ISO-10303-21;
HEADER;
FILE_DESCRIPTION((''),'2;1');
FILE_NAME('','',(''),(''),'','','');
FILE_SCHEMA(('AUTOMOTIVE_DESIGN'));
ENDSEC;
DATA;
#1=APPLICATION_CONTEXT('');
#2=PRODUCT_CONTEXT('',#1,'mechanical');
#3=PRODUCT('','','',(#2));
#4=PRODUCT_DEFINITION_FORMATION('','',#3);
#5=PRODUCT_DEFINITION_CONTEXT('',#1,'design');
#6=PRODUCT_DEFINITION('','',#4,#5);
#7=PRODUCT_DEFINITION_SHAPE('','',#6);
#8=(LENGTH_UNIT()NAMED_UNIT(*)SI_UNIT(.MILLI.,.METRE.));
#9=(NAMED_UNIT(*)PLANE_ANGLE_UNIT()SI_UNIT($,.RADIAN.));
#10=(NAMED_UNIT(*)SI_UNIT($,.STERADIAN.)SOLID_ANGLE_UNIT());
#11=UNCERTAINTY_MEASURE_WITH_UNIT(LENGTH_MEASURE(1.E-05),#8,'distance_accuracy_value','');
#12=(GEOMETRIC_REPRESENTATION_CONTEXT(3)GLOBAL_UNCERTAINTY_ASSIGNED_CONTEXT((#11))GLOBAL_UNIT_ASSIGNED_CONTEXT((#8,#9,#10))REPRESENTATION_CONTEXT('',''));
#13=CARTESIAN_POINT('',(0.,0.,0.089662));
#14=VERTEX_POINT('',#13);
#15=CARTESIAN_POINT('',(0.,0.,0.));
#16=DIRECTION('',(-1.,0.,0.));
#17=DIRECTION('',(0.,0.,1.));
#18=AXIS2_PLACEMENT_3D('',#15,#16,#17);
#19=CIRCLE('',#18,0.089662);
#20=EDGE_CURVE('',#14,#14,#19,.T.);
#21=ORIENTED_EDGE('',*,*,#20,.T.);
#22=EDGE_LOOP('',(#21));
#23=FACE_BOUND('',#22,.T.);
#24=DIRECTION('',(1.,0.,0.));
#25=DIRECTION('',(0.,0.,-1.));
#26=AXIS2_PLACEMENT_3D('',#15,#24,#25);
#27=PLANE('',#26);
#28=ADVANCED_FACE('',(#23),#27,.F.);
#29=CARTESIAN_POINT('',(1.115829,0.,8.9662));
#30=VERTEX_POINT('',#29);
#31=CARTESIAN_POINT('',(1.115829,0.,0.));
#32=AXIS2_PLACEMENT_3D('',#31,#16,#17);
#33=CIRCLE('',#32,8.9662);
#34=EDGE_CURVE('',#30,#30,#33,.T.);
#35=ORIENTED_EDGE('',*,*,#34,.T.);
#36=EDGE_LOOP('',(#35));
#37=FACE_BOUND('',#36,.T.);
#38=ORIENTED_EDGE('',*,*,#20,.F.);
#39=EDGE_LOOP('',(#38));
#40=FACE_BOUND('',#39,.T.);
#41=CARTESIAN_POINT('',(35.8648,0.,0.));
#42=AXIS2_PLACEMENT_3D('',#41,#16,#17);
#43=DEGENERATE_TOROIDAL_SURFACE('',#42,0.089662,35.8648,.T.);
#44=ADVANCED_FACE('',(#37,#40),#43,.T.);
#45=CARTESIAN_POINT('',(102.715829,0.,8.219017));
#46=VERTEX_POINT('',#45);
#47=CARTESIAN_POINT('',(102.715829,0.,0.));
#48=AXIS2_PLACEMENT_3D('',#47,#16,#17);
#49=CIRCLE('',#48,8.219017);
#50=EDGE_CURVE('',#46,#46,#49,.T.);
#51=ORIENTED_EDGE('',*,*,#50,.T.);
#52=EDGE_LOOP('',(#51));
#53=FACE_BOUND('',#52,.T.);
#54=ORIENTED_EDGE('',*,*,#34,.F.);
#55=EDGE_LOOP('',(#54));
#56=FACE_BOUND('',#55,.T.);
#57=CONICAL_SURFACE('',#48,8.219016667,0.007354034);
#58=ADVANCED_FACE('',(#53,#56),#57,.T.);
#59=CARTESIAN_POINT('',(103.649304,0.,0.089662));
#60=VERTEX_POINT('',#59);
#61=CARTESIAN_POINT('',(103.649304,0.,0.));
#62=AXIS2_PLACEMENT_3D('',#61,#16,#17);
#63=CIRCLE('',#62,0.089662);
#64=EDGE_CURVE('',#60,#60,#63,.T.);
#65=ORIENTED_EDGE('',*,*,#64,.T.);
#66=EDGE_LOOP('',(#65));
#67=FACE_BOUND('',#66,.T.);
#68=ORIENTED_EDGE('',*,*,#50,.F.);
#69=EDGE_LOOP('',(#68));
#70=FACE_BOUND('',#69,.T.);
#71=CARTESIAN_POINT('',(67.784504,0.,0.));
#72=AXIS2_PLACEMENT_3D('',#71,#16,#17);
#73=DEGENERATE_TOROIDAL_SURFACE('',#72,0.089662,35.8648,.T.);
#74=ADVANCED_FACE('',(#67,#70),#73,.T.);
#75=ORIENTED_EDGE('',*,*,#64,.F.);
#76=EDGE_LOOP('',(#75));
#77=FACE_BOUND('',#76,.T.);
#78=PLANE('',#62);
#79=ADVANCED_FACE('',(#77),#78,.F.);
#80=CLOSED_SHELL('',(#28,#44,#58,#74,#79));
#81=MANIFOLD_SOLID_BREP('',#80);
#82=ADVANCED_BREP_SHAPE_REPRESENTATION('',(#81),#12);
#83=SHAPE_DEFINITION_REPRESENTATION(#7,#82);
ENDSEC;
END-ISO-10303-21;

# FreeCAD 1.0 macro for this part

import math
import FreeCAD as App
import Part
import Sketcher
Q = App.Units.Quantity

doc = App.newDocument("Part")
body = doc.addObject("PartDesign::Body", "Body")

sketch1 = body.newObject("Sketcher::SketchObject", "Sketch")
sketch1.AttachmentSupport = (doc.getObject("XY_Plane"), [""])
sketch1.MapMode = "FlatFace"
sketch1.addGeometry([
    Part.LineSegment(App.Vector(0, 0.09, 0), App.Vector(0, 0, 0)),
    Part.LineSegment(App.Vector(0, 0, 0), App.Vector(103.65, 0, 0)),
    Part.LineSegment(App.Vector(103.65, 0, 0), App.Vector(103.65, 0.09, 0)),
    Part.ArcOfCircle(Part.Circle(App.Vector(67.78, 0.09, 0), App.Vector(0, 0, 1), 35.86), math.radians(0), math.radians(13.1)),
    Part.LineSegment(App.Vector(102.72, 8.22, 0), App.Vector(1.12, 8.97, 0)),
    Part.ArcOfCircle(Part.Circle(App.Vector(35.86, 0.09, 0), App.Vector(0, 0, 1), 35.86), math.radians(165.67), math.radians(180)),
], False)
sketch1.addConstraint([
    Sketcher.Constraint("Coincident", 0, 2, 1, 1),
    Sketcher.Constraint("Coincident", 1, 2, 2, 1),
    Sketcher.Constraint("Tangent", 2, 2, 3, 1),
    Sketcher.Constraint("Coincident", 3, 2, 4, 1),
    Sketcher.Constraint("Coincident", 4, 2, 5, 1),
    Sketcher.Constraint("Tangent", 5, 2, 0, 1),
    Sketcher.Constraint("Vertical", 0),
    Sketcher.Constraint("Horizontal", 1),
    Sketcher.Constraint("Vertical", 2),
    Sketcher.Constraint("Coincident", 0, 2, -1, 1),
    Sketcher.Constraint("Equal", 3, 5),
    Sketcher.Constraint("Horizontal", 3, 3, 5, 3),
    Sketcher.Constraint("Radius", 3, Q("1.412 in")),
    Sketcher.Constraint("DistanceX", 4, 2, 3, 2, Q("4 in")),
    Sketcher.Constraint("DistanceY", -1, 1, 4, 2, Q("0.353 in")),
    Sketcher.Constraint("DistanceX", 1, 1, 1, 2, Q("103.649304 mm")),
    Sketcher.Constraint("DistanceY", 0, 2, 0, 1, Q("0.089662 mm")),
])
revolution = body.newObject("PartDesign::Revolution", "Revolution")
revolution.Profile = sketch1
revolution.ReferenceAxis = (sketch1, ["H_Axis"])
revolution.Angle = 360

doc.recompute()
